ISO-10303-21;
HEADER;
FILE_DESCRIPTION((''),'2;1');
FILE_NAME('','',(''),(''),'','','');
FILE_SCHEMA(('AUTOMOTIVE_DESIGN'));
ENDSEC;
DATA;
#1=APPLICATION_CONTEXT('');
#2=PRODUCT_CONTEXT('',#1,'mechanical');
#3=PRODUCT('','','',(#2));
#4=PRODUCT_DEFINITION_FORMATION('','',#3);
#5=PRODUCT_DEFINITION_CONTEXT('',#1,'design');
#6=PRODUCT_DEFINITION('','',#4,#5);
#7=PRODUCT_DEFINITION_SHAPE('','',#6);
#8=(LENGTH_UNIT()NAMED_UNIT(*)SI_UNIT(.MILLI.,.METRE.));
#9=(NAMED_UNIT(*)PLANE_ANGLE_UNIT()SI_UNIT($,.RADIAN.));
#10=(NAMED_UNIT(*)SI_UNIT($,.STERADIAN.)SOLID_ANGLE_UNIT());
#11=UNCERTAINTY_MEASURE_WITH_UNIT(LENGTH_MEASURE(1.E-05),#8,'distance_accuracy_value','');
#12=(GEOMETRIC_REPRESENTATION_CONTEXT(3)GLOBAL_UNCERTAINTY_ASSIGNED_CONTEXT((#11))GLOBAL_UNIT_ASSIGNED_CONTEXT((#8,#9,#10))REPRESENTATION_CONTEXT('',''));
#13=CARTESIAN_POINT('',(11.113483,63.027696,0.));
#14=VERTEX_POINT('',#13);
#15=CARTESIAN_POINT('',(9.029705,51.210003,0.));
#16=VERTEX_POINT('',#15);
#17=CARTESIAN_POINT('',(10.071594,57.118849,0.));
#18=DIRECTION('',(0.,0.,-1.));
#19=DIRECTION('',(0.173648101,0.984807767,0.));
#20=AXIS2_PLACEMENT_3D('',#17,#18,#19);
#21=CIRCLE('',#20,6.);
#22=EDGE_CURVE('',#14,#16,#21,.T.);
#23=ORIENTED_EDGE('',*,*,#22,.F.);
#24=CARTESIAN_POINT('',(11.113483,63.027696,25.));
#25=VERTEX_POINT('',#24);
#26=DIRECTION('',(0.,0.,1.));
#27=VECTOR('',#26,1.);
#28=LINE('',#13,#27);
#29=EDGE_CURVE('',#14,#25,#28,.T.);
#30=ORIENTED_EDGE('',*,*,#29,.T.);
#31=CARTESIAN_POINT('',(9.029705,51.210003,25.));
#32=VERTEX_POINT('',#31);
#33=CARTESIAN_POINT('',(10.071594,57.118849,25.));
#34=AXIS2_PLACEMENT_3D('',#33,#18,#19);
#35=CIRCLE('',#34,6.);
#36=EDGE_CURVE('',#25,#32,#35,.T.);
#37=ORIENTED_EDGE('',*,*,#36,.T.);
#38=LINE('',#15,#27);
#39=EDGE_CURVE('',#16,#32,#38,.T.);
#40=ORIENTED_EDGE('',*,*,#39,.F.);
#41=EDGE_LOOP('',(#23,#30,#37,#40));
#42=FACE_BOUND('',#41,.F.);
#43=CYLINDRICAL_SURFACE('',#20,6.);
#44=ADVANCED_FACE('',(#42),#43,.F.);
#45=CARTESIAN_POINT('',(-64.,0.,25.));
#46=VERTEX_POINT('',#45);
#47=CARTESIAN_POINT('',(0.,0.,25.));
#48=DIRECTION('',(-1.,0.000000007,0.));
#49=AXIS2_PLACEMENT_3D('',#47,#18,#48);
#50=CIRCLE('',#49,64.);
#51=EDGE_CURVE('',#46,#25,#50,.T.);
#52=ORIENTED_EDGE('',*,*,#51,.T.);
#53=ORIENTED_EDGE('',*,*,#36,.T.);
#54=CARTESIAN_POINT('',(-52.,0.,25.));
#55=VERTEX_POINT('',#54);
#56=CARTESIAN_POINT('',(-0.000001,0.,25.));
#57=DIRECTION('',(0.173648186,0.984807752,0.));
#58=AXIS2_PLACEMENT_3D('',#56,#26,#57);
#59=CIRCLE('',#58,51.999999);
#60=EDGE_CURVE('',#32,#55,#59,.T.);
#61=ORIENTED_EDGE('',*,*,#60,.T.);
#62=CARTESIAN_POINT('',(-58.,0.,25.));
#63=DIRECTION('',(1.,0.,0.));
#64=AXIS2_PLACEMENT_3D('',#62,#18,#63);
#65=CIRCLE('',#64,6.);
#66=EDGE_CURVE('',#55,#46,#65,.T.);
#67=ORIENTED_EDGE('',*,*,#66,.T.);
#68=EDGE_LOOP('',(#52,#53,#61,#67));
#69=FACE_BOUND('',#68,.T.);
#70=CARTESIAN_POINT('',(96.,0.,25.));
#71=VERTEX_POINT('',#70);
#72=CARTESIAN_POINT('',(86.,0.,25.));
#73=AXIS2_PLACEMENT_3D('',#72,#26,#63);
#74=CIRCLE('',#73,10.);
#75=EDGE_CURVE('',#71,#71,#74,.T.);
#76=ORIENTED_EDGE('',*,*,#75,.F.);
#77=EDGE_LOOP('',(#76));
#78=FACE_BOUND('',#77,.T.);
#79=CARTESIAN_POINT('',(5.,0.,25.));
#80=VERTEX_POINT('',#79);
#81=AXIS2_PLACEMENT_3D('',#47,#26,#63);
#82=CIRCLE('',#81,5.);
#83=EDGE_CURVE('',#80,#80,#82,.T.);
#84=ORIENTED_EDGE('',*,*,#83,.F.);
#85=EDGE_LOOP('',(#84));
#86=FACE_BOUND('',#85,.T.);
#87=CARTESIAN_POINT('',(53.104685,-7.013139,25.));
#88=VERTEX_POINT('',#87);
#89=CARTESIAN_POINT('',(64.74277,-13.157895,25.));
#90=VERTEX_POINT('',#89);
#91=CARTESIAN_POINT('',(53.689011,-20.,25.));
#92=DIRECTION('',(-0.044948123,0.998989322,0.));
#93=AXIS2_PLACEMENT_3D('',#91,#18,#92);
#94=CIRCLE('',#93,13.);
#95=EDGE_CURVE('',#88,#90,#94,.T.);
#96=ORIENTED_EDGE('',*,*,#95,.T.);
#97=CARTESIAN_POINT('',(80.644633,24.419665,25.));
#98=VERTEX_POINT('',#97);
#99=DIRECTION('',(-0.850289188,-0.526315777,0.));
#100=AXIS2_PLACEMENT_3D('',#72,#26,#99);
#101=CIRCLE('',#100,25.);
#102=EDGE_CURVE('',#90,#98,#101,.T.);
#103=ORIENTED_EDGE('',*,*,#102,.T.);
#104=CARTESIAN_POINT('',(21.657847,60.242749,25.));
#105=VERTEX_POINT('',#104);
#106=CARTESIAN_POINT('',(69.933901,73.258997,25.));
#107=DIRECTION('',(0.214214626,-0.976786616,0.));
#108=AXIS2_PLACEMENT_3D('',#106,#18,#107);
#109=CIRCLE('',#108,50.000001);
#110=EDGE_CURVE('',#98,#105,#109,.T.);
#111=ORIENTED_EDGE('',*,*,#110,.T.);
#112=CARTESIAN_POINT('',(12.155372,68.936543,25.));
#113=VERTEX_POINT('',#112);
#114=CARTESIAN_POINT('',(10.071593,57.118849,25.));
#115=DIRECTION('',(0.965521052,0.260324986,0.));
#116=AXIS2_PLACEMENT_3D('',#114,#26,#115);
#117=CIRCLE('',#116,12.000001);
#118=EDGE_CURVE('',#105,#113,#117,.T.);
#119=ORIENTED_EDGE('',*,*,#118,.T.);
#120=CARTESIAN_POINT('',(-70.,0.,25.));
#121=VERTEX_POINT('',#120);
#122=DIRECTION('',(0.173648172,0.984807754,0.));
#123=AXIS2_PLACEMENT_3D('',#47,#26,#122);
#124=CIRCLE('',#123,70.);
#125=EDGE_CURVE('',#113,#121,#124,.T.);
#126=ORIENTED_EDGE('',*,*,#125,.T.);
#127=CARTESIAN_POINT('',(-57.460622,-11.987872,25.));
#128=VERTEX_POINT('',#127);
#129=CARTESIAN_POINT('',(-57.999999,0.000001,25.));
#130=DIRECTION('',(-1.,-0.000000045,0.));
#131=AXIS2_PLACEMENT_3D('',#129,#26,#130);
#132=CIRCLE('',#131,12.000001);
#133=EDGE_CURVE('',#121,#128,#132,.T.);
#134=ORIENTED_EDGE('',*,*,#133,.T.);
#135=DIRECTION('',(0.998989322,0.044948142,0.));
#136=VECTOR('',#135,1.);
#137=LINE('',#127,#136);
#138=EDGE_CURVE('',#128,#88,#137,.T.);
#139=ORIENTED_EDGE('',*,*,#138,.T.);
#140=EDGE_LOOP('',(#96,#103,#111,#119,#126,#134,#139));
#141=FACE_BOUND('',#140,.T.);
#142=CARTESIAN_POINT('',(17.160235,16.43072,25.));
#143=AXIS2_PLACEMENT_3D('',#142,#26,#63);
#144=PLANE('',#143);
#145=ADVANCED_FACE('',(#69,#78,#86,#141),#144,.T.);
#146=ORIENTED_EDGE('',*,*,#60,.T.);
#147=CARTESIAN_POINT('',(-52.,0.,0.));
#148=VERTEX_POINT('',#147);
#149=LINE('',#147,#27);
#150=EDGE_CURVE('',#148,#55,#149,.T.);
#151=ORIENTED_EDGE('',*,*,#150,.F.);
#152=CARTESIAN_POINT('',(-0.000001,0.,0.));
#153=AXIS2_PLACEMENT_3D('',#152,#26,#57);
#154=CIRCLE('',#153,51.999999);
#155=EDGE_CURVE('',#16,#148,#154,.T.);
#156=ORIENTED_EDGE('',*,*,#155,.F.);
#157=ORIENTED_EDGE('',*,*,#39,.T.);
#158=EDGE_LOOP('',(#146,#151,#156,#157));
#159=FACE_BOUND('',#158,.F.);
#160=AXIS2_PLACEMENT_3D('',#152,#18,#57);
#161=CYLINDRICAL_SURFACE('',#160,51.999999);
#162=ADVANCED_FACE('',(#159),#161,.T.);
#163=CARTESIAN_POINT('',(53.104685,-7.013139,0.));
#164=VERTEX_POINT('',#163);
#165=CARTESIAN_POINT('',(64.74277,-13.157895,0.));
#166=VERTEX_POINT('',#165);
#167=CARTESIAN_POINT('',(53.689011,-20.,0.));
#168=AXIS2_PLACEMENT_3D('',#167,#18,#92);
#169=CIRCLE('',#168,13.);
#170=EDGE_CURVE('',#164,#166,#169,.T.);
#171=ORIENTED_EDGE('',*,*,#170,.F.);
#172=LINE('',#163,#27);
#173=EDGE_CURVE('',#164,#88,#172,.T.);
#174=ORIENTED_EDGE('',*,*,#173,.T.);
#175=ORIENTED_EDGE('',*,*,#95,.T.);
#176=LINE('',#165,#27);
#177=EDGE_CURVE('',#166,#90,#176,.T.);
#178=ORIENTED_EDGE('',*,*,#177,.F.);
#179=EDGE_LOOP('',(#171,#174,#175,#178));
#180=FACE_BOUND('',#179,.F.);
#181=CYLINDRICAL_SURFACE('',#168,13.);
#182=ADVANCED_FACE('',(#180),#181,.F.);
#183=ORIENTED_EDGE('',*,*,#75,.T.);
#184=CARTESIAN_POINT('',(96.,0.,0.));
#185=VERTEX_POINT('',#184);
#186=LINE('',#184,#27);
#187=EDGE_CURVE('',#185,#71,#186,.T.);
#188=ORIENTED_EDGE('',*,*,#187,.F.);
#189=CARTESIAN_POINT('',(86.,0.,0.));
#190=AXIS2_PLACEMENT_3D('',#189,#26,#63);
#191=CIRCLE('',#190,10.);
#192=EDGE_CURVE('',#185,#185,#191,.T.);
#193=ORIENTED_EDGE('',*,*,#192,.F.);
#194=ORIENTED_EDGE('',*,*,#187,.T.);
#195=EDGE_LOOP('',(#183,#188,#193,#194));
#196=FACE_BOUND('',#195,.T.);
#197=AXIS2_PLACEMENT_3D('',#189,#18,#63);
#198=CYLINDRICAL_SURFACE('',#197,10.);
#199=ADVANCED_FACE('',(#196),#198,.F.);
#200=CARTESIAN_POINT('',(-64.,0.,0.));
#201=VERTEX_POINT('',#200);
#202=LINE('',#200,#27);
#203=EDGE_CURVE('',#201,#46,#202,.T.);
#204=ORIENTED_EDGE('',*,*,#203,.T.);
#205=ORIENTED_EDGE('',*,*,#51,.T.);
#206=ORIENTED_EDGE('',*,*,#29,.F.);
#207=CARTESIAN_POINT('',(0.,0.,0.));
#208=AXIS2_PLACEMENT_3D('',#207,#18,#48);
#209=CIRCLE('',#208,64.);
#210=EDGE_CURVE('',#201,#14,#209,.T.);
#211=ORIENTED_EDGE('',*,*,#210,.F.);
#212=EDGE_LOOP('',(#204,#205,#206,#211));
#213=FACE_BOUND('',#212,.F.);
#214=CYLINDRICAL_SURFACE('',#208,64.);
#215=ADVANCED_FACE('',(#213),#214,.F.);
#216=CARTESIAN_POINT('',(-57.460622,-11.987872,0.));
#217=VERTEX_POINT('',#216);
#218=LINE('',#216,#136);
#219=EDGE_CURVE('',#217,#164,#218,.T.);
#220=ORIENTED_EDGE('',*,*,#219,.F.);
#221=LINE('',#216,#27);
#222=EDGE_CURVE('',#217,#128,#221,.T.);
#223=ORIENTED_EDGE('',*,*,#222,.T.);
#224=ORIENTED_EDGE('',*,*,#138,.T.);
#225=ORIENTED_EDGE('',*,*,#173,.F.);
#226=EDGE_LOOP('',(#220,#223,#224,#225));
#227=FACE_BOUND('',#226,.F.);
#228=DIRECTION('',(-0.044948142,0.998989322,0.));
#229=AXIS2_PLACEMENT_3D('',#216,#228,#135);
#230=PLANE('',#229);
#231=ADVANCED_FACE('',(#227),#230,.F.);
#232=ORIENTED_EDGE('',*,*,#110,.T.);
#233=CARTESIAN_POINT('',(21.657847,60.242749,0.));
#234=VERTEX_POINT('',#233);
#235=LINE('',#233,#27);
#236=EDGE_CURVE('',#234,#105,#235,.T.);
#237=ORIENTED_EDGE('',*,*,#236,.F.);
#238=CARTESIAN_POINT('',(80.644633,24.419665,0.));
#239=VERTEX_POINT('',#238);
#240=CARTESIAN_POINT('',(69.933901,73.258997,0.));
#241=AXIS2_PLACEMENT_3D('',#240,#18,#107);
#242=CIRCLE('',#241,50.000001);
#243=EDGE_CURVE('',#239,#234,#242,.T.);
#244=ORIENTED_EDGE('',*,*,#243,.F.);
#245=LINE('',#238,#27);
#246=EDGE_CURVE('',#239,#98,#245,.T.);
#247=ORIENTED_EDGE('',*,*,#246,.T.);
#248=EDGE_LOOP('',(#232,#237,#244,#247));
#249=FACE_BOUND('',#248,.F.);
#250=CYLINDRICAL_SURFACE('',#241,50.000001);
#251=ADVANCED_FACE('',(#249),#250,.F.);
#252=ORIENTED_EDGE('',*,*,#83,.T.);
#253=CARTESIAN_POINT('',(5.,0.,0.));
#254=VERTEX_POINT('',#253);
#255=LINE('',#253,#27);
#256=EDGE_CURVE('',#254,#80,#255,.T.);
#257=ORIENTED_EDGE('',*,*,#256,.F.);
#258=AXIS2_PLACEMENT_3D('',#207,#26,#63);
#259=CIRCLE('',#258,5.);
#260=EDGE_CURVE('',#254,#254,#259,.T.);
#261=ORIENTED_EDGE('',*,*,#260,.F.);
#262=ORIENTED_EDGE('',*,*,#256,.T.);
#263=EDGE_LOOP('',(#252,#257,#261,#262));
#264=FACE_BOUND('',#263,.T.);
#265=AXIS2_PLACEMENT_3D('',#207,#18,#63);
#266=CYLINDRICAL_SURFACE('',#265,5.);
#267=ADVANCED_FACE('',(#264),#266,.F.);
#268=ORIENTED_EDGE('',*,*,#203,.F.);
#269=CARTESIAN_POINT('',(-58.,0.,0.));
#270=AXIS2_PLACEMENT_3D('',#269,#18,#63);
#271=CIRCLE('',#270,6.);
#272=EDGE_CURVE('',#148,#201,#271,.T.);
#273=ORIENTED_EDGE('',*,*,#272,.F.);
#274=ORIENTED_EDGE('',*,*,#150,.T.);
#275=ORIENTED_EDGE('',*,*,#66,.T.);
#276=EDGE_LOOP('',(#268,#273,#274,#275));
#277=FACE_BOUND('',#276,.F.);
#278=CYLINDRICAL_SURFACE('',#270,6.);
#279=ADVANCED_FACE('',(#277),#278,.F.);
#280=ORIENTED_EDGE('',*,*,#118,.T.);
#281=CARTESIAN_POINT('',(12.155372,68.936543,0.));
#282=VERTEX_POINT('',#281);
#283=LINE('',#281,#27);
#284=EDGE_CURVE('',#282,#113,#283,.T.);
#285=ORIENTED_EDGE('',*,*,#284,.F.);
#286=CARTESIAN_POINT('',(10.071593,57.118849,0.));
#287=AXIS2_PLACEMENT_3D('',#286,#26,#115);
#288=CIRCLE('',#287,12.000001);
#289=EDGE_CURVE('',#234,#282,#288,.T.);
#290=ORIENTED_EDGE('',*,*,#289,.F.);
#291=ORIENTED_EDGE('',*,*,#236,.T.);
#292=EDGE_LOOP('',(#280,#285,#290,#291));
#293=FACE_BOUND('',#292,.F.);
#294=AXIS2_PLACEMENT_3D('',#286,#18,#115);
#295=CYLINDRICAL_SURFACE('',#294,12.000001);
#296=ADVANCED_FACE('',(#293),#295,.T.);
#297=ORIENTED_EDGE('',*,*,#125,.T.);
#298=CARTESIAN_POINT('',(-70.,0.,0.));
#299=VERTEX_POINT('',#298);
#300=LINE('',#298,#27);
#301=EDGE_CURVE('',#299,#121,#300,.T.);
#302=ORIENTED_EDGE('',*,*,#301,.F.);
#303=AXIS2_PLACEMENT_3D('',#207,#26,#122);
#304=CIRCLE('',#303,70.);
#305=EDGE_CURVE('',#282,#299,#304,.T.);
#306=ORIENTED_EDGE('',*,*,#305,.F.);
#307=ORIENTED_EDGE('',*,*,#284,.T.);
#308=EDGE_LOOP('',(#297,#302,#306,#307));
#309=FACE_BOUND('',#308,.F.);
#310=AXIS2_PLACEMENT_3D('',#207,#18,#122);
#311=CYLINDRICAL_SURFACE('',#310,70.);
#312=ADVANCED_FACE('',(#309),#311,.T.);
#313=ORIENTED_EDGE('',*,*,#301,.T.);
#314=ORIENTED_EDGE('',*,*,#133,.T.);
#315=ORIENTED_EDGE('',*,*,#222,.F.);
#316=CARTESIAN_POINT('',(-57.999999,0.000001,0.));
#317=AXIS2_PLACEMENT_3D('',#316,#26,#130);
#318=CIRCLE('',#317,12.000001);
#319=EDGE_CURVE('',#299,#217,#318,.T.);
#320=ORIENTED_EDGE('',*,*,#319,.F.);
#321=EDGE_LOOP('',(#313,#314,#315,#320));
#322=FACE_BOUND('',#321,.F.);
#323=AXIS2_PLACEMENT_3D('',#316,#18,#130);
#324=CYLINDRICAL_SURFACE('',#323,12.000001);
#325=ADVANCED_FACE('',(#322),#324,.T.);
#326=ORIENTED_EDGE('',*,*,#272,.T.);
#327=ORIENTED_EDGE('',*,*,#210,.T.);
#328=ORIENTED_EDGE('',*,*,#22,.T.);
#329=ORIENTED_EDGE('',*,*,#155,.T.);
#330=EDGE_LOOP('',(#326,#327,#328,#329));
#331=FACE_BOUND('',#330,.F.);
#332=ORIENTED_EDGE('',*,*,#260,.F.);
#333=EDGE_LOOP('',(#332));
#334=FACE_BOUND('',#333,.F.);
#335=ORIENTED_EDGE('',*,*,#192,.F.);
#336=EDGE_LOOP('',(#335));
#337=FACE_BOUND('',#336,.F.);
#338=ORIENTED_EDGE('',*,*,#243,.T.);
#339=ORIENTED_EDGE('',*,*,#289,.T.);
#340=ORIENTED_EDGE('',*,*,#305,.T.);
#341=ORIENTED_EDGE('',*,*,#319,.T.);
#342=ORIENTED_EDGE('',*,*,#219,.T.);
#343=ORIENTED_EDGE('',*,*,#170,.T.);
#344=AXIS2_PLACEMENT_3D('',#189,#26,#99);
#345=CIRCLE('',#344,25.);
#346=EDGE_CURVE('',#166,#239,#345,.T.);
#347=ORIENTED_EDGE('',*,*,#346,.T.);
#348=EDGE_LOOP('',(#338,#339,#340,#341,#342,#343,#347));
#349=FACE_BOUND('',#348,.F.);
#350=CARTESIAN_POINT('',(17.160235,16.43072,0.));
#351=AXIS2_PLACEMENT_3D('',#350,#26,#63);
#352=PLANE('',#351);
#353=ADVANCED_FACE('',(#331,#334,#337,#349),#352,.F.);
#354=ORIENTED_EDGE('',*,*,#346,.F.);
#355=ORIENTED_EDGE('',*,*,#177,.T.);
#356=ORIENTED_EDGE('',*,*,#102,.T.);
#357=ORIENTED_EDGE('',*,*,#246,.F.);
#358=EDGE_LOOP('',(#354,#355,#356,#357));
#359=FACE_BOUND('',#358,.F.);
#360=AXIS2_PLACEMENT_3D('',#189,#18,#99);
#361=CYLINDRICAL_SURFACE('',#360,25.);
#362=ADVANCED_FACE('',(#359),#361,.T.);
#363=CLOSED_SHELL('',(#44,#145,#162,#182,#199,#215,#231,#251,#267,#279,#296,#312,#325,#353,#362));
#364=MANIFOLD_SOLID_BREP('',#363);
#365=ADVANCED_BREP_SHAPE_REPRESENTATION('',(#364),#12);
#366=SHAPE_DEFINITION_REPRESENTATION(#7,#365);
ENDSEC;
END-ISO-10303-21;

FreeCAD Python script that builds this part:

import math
import FreeCAD as App
import Part
import Sketcher
from FreeCAD import Vector

doc = App.newDocument("Part")
body = doc.addObject("PartDesign::Body", "Body")

# Sketch on XY plane
sketch1 = doc.addObject("Sketcher::SketchObject", "Sketch")
body.addObject(sketch1)
sketch1.AttachmentSupport = (doc.XY_Plane, [""])
sketch1.MapMode = "FlatFace"
sketch1.addGeometry(Part.ArcOfCircle(Part.Circle(Vector(54, -20, 0), Vector(0, 0, 1), 13), math.radians(32), math.radians(93)), False)
sketch1.addGeometry(Part.ArcOfCircle(Part.Circle(Vector(86, 0, 0), Vector(0, 0, 1), 25), math.radians(-148), math.radians(102)), False)
sketch1.addGeometry(Part.ArcOfCircle(Part.Circle(Vector(70, 73, 0), Vector(0, 0, 1), 50), math.radians(-165), math.radians(-78)), False)
sketch1.addGeometry(Part.ArcOfCircle(Part.Circle(Vector(10, 57, 0), Vector(0, 0, 1), 12), math.radians(15), math.radians(80)), False)
sketch1.addGeometry(Part.ArcOfCircle(Part.Circle(Vector(0, 0, 0), Vector(0, 0, 1), 70), math.radians(80), math.radians(180)), False)
sketch1.addGeometry(Part.ArcOfCircle(Part.Circle(Vector(-58, 0, 0), Vector(0, 0, 1), 12), math.radians(-180), math.radians(-87)), False)
sketch1.addGeometry(Part.LineSegment(Vector(-57, -12, 0), Vector(53, -7, 0)), False)
sketch1.addGeometry(Part.Circle(Vector(0, 0, 0), Vector(0, 0, 1), 5), False)
sketch1.addGeometry(Part.Circle(Vector(86, 0, 0), Vector(0, 0, 1), 10), False)
sketch1.addGeometry(Part.ArcOfCircle(Part.Circle(Vector(-58, 0, 0), Vector(0, 0, 1), 6), math.radians(180), math.radians(360)), False)
sketch1.addGeometry(Part.ArcOfCircle(Part.Circle(Vector(0, 0, 0), Vector(0, 0, 1), 64), math.radians(80), math.radians(180)), False)
sketch1.addGeometry(Part.ArcOfCircle(Part.Circle(Vector(10, 57, 0), Vector(0, 0, 1), 6), math.radians(-100), math.radians(80)), False)
sketch1.addGeometry(Part.ArcOfCircle(Part.Circle(Vector(0, 0, 0), Vector(0, 0, 1), 52), math.radians(80), math.radians(180)), False)
sketch1.addConstraint(Sketcher.Constraint("Tangent", 0, 1, 1, 1))
sketch1.addConstraint(Sketcher.Constraint("Tangent", 1, 2, 2, 2))
sketch1.addConstraint(Sketcher.Constraint("Tangent", 2, 1, 3, 1))
sketch1.addConstraint(Sketcher.Constraint("Tangent", 3, 2, 4, 1))
sketch1.addConstraint(Sketcher.Constraint("Tangent", 4, 2, 5, 1))
sketch1.addConstraint(Sketcher.Constraint("Tangent", 5, 2, 6, 1))
sketch1.addConstraint(Sketcher.Constraint("Tangent", 6, 2, 0, 2))
sketch1.addConstraint(Sketcher.Constraint("Tangent", 9, 1, 10, 2))
sketch1.addConstraint(Sketcher.Constraint("Tangent", 10, 1, 11, 2))
sketch1.addConstraint(Sketcher.Constraint("Tangent", 11, 1, 12, 1))
sketch1.addConstraint(Sketcher.Constraint("Tangent", 12, 2, 9, 2))
sketch1.addConstraint(Sketcher.Constraint("Coincident", 4, 3, -1, 1))
sketch1.addConstraint(Sketcher.Constraint("Coincident", 7, 3, -1, 1))
sketch1.addConstraint(Sketcher.Constraint("Coincident", 10, 3, -1, 1))
sketch1.addConstraint(Sketcher.Constraint("Coincident", 12, 3, -1, 1))
sketch1.addConstraint(Sketcher.Constraint("Coincident", 8, 3, 1, 3))
sketch1.addConstraint(Sketcher.Constraint("Coincident", 9, 3, 5, 3))
sketch1.addConstraint(Sketcher.Constraint("Coincident", 11, 3, 3, 3))
sketch1.addConstraint(Sketcher.Constraint("PointOnObject", 1, 3, -1))
sketch1.addConstraint(Sketcher.Constraint("PointOnObject", 5, 3, -1))
sketch1.addConstraint(Sketcher.Constraint("Diameter", 7, 10.0))
sketch1.addConstraint(Sketcher.Constraint("Diameter", 8, 20.0))
sketch1.addConstraint(Sketcher.Constraint("Radius", 0, 13.0))
sketch1.addConstraint(Sketcher.Constraint("Radius", 1, 25.0))
sketch1.addConstraint(Sketcher.Constraint("Radius", 2, 50.000001))
sketch1.addConstraint(Sketcher.Constraint("Radius", 3, 12.000001))
sketch1.addConstraint(Sketcher.Constraint("Radius", 4, 70.0))
sketch1.addConstraint(Sketcher.Constraint("Radius", 9, 6.0))
sketch1.addConstraint(Sketcher.Constraint("DistanceY", 0, 3, -1, 1, 20.0))
sketch1.addConstraint(Sketcher.Constraint("DistanceX", -1, 1, 1, 3, 86.0))
sketch1.addConstraint(Sketcher.Constraint("DistanceX", -1, 1, 2, 3, 69.933901))
pad1 = doc.addObject("PartDesign::Pad", "Pad")
body.addObject(pad1)
pad1.Profile = sketch1
pad1.Length = 25

doc.recompute()
